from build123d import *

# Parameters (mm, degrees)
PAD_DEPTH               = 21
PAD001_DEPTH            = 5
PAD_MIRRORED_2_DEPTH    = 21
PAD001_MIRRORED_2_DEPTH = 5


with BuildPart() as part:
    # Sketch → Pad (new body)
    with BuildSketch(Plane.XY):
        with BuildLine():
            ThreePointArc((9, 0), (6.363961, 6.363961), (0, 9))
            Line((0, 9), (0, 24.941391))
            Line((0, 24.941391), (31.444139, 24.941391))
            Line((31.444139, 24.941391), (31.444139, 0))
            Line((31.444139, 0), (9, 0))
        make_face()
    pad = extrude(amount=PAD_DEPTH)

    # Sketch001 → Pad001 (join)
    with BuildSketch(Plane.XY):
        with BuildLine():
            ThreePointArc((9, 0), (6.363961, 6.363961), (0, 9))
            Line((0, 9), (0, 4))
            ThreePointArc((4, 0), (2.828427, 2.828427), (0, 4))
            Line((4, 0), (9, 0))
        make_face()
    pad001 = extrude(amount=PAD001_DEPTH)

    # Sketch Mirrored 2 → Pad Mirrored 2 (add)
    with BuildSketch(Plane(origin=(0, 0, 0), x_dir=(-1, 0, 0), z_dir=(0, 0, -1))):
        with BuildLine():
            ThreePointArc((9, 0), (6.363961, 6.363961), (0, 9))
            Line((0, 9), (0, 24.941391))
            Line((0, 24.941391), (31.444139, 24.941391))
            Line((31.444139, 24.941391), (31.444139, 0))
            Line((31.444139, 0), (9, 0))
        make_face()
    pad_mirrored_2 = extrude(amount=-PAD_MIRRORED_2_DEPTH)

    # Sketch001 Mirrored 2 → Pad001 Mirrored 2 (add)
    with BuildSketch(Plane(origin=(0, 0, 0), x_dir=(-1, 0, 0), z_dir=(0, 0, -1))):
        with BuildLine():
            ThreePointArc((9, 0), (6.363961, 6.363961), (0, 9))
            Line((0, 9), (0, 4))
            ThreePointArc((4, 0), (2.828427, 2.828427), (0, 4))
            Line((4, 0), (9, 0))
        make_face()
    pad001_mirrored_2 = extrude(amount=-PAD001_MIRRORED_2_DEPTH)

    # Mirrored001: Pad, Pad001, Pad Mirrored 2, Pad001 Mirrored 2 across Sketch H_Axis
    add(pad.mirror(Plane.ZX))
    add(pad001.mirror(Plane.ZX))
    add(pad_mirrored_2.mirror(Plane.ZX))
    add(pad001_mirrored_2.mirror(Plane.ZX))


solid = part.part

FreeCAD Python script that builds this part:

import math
import FreeCAD as App
import Part
import Sketcher

V = App.Vector
Q = App.Units.Quantity

doc = App.newDocument("Part")
body = doc.addObject("PartDesign::Body", "Body")

# Sketch on XY plane
sketch1 = body.newObject("Sketcher::SketchObject", "Sketch")
sketch1.AttachmentSupport = (doc.getObject("XY_Plane"), [""])
sketch1.MapMode = "FlatFace"
sketch1.addGeometry([
    Part.ArcOfCircle(Part.Circle(V(0, 0, 0), V(0, 0, 1), 9), math.radians(0), math.radians(90)),  # 0
    Part.LineSegment(V(9, 0, 0), V(31, 0, 0)),  # 1
    Part.LineSegment(V(31, 0, 0), V(31, 25, 0)),  # 2
    Part.LineSegment(V(31, 25, 0), V(0, 25, 0)),  # 3
    Part.LineSegment(V(0, 25, 0), V(0, 9, 0)),  # 4
], False)
sketch1.addConstraint([
    Sketcher.Constraint("Coincident", 0, 1, 1, 1),
    Sketcher.Constraint("Coincident", 1, 2, 2, 1),
    Sketcher.Constraint("Coincident", 2, 2, 3, 1),
    Sketcher.Constraint("Coincident", 3, 2, 4, 1),
    Sketcher.Constraint("Coincident", 4, 2, 0, 2),
    Sketcher.Constraint("Horizontal", 1),
    Sketcher.Constraint("Vertical", 2),
    Sketcher.Constraint("Horizontal", 3),
    Sketcher.Constraint("Vertical", 4),
    Sketcher.Constraint("Coincident", 0, 3, -1, 1),
    Sketcher.Constraint("PointOnObject", 0, 1, -1),
    Sketcher.Constraint("PointOnObject", 3, 2, -2),
    Sketcher.Constraint("Radius", 0, Q("9 mm")),
    Sketcher.Constraint("DistanceX", 1, 1, 1, 2, Q("22.444139 mm")),
    Sketcher.Constraint("DistanceY", 2, 1, 2, 2, Q("24.941391 mm")),
])
pad1 = body.newObject("PartDesign::Pad", "Pad")
pad1.Profile = sketch1
pad1.Length = 21

# Sketch on XY plane
sketch2 = body.newObject("Sketcher::SketchObject", "Sketch001")
sketch2.AttachmentSupport = (doc.getObject("XY_Plane"), [""])
sketch2.MapMode = "FlatFace"
sketch2.addGeometry([
    Part.ArcOfCircle(Part.Circle(V(0, 0, 0), V(0, 0, 1), 9), math.radians(0), math.radians(90)),
    Part.LineSegment(V(0, 9, 0), V(0, 4, 0)),
    Part.ArcOfCircle(Part.Circle(V(0, 0, 0), V(0, 0, 1), 4), math.radians(0), math.radians(90)),
    Part.LineSegment(V(4, 0, 0), V(9, 0, 0)),
], False)
sketch2.addConstraint([
    Sketcher.Constraint("Coincident", 0, 2, 1, 1),
    Sketcher.Constraint("Coincident", 1, 2, 2, 2),
    Sketcher.Constraint("Coincident", 2, 1, 3, 1),
    Sketcher.Constraint("Coincident", 3, 2, 0, 1),
    Sketcher.Constraint("Vertical", 1),
    Sketcher.Constraint("Horizontal", 3),
    Sketcher.Constraint("Coincident", 0, 3, -1, 1),
    Sketcher.Constraint("Coincident", 2, 3, -1, 1),
    Sketcher.Constraint("PointOnObject", 0, 2, -2),
    Sketcher.Constraint("PointOnObject", 2, 1, -1),
    Sketcher.Constraint("Radius", 0, Q("9 mm")),
    Sketcher.Constraint("Radius", 2, Q("4 mm")),
])
pad2 = body.newObject("PartDesign::Pad", "Pad001")
pad2.Profile = sketch2
pad2.Length = 5

# Sketch on XY plane
sketch3 = body.newObject("Sketcher::SketchObject", "Sketch002")
sketch3.AttachmentSupport = (doc.getObject("XY_Plane"), [""])
sketch3.MapMode = "FlatFace"
sketch3.addGeometry([
    Part.ArcOfCircle(Part.Circle(V(0, 0, 0), V(0, 0, 1), 9), math.radians(90), math.radians(180)),  # 0
    Part.LineSegment(V(-9, 0, 0), V(-31, 0, 0)),  # 1
    Part.LineSegment(V(-31, 0, 0), V(-31, 25, 0)),  # 2
    Part.LineSegment(V(-31, 25, 0), V(0, 25, 0)),  # 3
    Part.LineSegment(V(0, 25, 0), V(0, 9, 0)),  # 4
], False)
sketch3.addConstraint([
    Sketcher.Constraint("Coincident", 0, 2, 1, 1),
    Sketcher.Constraint("Coincident", 1, 2, 2, 1),
    Sketcher.Constraint("Coincident", 2, 2, 3, 1),
    Sketcher.Constraint("Coincident", 3, 2, 4, 1),
    Sketcher.Constraint("Coincident", 4, 2, 0, 1),
    Sketcher.Constraint("Horizontal", 1),
    Sketcher.Constraint("Vertical", 2),
    Sketcher.Constraint("Horizontal", 3),
    Sketcher.Constraint("Vertical", 4),
    Sketcher.Constraint("Coincident", 0, 3, -1, 1),
    Sketcher.Constraint("PointOnObject", 0, 2, -1),
    Sketcher.Constraint("PointOnObject", 3, 2, -2),
    Sketcher.Constraint("Radius", 0, Q("9 mm")),
    Sketcher.Constraint("DistanceX", 1, 2, 1, 1, Q("22.444139 mm")),
    Sketcher.Constraint("DistanceY", 2, 1, 2, 2, Q("24.941391 mm")),
])
pad3 = body.newObject("PartDesign::Pad", "Pad002")
pad3.Profile = sketch3
pad3.Length = 21

# Sketch on XY plane
sketch4 = body.newObject("Sketcher::SketchObject", "Sketch003")
sketch4.AttachmentSupport = (doc.getObject("XY_Plane"), [""])
sketch4.MapMode = "FlatFace"
sketch4.addGeometry([
    Part.ArcOfCircle(Part.Circle(V(0, 0, 0), V(0, 0, 1), 9), math.radians(90), math.radians(180)),
    Part.LineSegment(V(0, 9, 0), V(0, 4, 0)),
    Part.ArcOfCircle(Part.Circle(V(0, 0, 0), V(0, 0, 1), 4), math.radians(90), math.radians(180)),
    Part.LineSegment(V(-4, 0, 0), V(-9, 0, 0)),
], False)
sketch4.addConstraint([
    Sketcher.Constraint("Coincident", 0, 1, 1, 1),
    Sketcher.Constraint("Coincident", 1, 2, 2, 1),
    Sketcher.Constraint("Coincident", 2, 2, 3, 1),
    Sketcher.Constraint("Coincident", 3, 2, 0, 2),
    Sketcher.Constraint("Vertical", 1),
    Sketcher.Constraint("Horizontal", 3),
    Sketcher.Constraint("Coincident", 0, 3, -1, 1),
    Sketcher.Constraint("Coincident", 2, 3, -1, 1),
    Sketcher.Constraint("PointOnObject", 0, 1, -2),
    Sketcher.Constraint("PointOnObject", 2, 2, -1),
    Sketcher.Constraint("Radius", 0, Q("9 mm")),
    Sketcher.Constraint("Radius", 2, Q("4 mm")),
])
pad4 = body.newObject("PartDesign::Pad", "Pad003")
pad4.Profile = sketch4
pad4.Length = 5
doc.recompute()

mirrored = body.newObject("PartDesign::Mirrored", "Mirrored")
mirrored.Originals = [pad1, pad2, pad3, pad4]
mirrored.MirrorPlane = (doc.getObject("XZ_Plane"), [""])
body.Tip = mirrored

doc.recompute()
